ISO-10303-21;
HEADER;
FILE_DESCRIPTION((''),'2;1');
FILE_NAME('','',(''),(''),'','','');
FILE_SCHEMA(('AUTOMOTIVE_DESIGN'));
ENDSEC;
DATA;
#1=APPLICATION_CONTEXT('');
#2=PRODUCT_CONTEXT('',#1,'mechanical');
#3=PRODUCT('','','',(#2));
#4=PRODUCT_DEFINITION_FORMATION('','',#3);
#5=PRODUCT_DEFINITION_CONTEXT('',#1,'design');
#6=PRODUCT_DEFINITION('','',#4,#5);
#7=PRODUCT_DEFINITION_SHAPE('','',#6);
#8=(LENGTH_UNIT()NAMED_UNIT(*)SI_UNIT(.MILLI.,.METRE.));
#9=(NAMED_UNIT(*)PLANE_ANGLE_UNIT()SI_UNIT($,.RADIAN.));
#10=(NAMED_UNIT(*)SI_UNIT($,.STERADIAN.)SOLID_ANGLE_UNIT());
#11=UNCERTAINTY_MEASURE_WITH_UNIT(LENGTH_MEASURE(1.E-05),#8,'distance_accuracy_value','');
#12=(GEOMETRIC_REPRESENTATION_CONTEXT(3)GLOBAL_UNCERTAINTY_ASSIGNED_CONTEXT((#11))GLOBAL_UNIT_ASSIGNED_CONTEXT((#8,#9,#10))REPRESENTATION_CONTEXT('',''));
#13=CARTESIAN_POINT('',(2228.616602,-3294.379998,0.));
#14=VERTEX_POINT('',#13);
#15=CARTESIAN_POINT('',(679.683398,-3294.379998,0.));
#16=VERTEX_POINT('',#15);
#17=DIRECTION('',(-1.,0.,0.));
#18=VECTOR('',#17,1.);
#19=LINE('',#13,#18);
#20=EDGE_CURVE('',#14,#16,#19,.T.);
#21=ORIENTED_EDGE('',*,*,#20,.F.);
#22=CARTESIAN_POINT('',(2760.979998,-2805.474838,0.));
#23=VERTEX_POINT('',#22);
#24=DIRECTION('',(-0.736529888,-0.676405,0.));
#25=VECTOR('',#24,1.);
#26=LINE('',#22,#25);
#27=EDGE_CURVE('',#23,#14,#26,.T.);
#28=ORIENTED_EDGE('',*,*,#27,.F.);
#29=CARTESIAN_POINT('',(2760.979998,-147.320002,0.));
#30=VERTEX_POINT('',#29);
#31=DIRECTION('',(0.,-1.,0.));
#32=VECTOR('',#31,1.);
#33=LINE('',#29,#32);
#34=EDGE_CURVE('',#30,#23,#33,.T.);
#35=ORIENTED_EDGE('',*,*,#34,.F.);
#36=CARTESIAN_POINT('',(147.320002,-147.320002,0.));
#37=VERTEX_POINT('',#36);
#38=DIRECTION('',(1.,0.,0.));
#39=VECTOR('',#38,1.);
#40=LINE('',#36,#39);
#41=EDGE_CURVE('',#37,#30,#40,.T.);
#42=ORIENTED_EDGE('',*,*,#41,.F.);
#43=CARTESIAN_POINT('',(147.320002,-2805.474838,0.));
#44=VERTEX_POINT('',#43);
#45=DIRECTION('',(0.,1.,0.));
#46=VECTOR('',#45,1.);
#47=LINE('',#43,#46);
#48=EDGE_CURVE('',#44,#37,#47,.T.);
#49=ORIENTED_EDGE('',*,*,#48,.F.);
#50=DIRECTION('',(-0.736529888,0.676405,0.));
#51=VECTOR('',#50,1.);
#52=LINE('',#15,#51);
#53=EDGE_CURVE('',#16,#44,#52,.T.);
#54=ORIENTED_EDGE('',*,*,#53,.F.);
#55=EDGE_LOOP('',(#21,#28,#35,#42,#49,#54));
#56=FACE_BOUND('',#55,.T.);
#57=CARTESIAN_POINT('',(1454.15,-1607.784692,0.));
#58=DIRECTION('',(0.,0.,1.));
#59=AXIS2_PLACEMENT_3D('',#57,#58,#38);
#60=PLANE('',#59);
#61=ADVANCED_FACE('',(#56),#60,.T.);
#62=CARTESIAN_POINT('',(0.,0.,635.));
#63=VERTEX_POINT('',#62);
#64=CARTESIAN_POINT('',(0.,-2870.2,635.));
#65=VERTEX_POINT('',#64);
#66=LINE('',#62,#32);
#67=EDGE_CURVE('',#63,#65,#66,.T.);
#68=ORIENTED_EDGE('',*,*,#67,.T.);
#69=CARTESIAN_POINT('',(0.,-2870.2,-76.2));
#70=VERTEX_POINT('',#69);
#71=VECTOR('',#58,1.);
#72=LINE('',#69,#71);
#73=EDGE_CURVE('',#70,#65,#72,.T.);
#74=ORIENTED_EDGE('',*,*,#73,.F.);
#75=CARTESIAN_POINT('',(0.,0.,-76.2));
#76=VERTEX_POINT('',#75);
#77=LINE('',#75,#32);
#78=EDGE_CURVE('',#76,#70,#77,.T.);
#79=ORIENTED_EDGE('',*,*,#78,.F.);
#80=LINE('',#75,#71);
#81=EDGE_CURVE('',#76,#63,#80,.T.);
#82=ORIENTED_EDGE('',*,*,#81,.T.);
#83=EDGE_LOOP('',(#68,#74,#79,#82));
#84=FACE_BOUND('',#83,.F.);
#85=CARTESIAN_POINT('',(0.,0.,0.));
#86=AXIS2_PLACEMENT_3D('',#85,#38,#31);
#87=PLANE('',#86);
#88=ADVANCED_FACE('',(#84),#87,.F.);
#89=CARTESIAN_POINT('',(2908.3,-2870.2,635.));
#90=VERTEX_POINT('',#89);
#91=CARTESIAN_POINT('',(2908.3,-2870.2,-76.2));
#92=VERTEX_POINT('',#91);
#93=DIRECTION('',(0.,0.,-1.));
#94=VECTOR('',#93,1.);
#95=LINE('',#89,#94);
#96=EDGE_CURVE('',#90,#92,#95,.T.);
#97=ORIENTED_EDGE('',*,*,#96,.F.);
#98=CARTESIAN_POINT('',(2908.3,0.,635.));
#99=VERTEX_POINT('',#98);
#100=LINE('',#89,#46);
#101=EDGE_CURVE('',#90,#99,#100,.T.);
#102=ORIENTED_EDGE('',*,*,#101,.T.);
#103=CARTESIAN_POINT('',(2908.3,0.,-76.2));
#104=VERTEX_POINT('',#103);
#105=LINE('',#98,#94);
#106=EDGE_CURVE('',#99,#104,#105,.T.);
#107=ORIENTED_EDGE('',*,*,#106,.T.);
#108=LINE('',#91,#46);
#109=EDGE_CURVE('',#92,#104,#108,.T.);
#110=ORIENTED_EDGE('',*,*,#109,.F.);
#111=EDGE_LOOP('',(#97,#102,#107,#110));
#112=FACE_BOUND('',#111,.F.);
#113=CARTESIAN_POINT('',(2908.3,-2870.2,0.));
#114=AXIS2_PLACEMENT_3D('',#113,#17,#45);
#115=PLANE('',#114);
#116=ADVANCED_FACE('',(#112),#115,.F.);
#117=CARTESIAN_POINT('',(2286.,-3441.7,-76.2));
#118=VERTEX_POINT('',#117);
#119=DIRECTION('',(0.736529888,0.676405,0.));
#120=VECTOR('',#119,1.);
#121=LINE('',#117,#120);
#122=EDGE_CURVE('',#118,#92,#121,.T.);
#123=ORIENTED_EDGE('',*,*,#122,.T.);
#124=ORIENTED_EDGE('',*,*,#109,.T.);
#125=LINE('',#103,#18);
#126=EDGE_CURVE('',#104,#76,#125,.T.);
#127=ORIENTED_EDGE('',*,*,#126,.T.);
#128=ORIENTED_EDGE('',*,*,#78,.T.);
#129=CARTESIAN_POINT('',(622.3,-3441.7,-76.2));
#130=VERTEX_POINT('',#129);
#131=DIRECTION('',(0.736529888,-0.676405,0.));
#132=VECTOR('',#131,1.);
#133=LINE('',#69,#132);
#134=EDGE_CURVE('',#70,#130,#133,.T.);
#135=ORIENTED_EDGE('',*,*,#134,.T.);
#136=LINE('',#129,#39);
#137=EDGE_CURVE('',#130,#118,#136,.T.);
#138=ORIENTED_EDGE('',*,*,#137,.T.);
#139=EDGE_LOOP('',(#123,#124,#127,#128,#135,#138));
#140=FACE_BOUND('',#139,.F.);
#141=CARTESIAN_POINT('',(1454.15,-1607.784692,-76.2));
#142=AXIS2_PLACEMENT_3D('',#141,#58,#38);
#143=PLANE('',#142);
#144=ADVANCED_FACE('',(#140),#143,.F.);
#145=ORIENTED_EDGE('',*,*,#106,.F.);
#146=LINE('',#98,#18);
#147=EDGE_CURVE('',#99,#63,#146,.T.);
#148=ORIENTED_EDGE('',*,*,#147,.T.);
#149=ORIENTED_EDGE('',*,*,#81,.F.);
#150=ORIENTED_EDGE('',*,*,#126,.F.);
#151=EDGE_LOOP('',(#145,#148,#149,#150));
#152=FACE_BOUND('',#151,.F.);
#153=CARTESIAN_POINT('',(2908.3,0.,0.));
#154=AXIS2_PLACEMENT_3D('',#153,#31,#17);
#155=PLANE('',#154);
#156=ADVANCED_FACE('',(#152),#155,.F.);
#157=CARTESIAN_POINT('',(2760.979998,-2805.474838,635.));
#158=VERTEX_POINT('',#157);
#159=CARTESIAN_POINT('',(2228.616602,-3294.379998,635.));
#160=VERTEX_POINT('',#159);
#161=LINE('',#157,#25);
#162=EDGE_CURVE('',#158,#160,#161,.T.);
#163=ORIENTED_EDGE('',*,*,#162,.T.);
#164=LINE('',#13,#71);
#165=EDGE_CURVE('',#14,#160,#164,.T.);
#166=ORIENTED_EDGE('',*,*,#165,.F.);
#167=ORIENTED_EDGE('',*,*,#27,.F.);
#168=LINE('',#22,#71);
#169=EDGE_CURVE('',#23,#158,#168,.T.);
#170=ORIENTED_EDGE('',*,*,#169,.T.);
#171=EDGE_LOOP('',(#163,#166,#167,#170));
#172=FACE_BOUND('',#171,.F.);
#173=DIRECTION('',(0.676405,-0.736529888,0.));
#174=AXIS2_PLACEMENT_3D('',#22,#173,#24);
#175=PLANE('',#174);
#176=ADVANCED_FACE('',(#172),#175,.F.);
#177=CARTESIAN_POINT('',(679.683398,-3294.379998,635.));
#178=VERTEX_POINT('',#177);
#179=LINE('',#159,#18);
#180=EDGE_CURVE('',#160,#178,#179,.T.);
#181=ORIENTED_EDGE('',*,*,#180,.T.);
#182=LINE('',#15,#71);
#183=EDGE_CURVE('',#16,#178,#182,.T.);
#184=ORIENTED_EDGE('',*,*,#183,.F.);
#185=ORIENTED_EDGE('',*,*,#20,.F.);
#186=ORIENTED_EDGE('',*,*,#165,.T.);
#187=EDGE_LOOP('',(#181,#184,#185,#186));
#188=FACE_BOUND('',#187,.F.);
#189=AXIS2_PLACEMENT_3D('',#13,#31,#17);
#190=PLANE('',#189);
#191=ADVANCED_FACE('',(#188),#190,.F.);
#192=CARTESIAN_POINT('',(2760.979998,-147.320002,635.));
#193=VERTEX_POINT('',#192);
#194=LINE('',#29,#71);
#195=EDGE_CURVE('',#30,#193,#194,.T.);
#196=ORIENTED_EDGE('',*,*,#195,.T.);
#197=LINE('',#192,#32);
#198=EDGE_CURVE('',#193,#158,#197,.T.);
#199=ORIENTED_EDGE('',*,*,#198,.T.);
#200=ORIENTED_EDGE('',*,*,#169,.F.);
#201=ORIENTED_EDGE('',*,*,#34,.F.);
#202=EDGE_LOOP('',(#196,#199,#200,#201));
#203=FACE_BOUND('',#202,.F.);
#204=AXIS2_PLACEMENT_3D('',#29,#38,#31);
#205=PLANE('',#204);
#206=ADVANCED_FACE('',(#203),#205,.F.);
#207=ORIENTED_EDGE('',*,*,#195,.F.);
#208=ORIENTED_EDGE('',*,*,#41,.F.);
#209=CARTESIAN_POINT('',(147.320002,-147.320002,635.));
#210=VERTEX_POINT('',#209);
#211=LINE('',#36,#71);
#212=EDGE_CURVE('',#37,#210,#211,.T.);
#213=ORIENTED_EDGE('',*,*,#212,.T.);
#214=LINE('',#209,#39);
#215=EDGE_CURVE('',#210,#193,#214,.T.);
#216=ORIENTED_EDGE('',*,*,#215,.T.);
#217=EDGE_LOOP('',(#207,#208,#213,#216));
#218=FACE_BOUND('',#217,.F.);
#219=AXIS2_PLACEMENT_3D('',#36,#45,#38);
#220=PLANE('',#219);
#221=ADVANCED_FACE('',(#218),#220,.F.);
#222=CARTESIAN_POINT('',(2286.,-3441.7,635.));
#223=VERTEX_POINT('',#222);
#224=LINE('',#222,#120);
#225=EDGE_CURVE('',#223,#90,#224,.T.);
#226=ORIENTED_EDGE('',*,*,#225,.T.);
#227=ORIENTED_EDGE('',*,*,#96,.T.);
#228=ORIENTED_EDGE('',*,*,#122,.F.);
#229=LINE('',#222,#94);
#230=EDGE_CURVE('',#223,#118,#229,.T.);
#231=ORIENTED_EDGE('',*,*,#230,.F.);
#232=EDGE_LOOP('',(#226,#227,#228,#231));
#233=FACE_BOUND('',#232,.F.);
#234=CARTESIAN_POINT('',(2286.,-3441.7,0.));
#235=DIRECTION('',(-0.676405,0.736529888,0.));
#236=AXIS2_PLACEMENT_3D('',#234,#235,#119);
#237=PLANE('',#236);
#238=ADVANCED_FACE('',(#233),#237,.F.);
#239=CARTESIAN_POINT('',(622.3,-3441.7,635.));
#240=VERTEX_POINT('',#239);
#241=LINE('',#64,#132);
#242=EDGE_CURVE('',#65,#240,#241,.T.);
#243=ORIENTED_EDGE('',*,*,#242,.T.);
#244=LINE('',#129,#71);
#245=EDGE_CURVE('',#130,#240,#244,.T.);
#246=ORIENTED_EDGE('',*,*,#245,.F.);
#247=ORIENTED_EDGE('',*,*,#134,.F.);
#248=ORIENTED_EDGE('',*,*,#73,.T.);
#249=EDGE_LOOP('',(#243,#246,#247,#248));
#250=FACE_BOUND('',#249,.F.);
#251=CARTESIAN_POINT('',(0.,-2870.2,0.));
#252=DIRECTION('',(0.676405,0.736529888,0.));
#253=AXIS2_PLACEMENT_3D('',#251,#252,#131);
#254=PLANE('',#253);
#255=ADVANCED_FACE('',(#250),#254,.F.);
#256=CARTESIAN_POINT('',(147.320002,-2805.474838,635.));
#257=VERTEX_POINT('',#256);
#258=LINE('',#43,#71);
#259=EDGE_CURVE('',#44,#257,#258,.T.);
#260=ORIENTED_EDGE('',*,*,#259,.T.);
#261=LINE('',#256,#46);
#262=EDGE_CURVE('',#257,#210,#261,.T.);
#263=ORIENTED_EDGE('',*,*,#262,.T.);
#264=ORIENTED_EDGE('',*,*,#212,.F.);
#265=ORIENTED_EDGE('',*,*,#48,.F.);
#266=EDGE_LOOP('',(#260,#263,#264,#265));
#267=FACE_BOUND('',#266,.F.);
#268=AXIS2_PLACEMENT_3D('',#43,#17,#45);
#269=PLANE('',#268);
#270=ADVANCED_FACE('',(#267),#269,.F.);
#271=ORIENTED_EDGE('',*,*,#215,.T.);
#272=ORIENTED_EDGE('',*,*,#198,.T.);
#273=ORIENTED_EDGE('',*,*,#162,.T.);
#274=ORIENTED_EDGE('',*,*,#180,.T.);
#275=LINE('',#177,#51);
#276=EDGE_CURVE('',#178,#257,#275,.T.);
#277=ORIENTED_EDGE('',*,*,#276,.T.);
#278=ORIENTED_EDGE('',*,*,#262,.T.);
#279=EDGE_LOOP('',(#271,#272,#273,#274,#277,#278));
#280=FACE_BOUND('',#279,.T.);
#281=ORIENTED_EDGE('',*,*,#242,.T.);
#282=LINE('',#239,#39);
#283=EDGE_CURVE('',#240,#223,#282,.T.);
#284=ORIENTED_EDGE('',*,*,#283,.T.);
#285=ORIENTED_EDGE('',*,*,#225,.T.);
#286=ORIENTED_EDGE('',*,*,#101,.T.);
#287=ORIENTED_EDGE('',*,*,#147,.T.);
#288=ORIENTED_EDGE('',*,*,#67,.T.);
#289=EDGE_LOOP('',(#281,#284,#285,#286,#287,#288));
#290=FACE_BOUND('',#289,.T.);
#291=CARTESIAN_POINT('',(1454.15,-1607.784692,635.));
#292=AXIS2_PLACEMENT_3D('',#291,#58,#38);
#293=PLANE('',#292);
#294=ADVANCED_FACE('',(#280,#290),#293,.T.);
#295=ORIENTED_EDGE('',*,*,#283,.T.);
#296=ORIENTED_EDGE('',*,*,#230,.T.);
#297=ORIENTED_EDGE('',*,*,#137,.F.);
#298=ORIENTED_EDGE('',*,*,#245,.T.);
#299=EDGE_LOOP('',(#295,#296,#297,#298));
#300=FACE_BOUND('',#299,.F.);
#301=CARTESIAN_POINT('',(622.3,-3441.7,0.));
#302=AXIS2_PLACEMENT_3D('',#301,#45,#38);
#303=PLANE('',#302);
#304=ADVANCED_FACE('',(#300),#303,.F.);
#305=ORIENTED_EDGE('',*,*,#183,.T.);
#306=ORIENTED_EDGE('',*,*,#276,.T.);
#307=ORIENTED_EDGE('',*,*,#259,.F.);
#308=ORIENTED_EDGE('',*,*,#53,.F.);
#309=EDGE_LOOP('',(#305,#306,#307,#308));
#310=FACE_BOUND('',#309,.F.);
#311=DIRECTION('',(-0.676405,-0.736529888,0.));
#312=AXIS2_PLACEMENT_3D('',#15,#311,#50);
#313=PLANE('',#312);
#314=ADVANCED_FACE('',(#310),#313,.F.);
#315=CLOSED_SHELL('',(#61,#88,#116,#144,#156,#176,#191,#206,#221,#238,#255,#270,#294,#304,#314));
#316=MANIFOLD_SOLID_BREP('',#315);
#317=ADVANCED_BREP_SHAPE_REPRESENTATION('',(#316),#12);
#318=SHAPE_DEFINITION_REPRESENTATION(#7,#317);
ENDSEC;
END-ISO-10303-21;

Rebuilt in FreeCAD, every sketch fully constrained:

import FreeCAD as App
import Part
import Sketcher
from FreeCAD import Vector
Q = App.Units.Quantity

doc = App.newDocument("Part")
body = doc.addObject("PartDesign::Body", "Body")

# Sketch on XY plane
sketch1 = body.newObject("Sketcher::SketchObject", "Sketch")
sketch1.AttachmentSupport = (doc.getObject("XY_Plane"), [""])
sketch1.MapMode = "FlatFace"
sketch1.addGeometry(Part.LineSegment(Vector(2908, 0, 0), Vector(0, 0, 0)), False)
sketch1.addGeometry(Part.LineSegment(Vector(0, 0, 0), Vector(0, -2870, 0)), False)
sketch1.addGeometry(Part.LineSegment(Vector(0, -2870, 0), Vector(622, -3442, 0)), False)
sketch1.addGeometry(Part.LineSegment(Vector(622, -3442, 0), Vector(2286, -3442, 0)), False)
sketch1.addGeometry(Part.LineSegment(Vector(2286, -3442, 0), Vector(2908, -2870, 0)), False)
sketch1.addGeometry(Part.LineSegment(Vector(2908, -2870, 0), Vector(2908, 0, 0)), False)
sketch1.addConstraint(Sketcher.Constraint("Coincident", 0, 2, 1, 1))
sketch1.addConstraint(Sketcher.Constraint("Coincident", 1, 2, 2, 1))
sketch1.addConstraint(Sketcher.Constraint("Coincident", 2, 2, 3, 1))
sketch1.addConstraint(Sketcher.Constraint("Coincident", 3, 2, 4, 1))
sketch1.addConstraint(Sketcher.Constraint("Coincident", 4, 2, 5, 1))
sketch1.addConstraint(Sketcher.Constraint("Coincident", 5, 2, 0, 1))
sketch1.addConstraint(Sketcher.Constraint("Horizontal", 0))
sketch1.addConstraint(Sketcher.Constraint("Vertical", 1))
sketch1.addConstraint(Sketcher.Constraint("Horizontal", 3))
sketch1.addConstraint(Sketcher.Constraint("Vertical", 5))
sketch1.addConstraint(Sketcher.Constraint("Coincident", 0, 2, -1, 1))
sketch1.addConstraint(Sketcher.Constraint("Horizontal", 1, 2, 4, 2))
sketch1.addConstraint(Sketcher.Constraint("Equal", 2, 4))
sketch1.addConstraint(Sketcher.Constraint("DistanceY", 1, 2, 1, 1, Q("113 in")))
sketch1.addConstraint(Sketcher.Constraint("DistanceX", 0, 2, 0, 1, Q("114.5 in")))
sketch1.addConstraint(Sketcher.Constraint("DistanceX", 3, 1, 3, 2, Q("65.5 in")))
sketch1.addConstraint(Sketcher.Constraint("DistanceY", 2, 2, -1, 1, Q("135.5 in")))
pad1 = body.newObject("PartDesign::Pad", "Pad")
pad1.Profile = sketch1
pad1.Length = Q("3 in")
pad1.Reversed = True

# Sketch on XY plane
sketch2 = body.newObject("Sketcher::SketchObject", "Sketch001")
sketch2.AttachmentSupport = (doc.getObject("XY_Plane"), [""])
sketch2.MapMode = "FlatFace"
sketch2.addGeometry(Part.LineSegment(Vector(2908, 0, 0), Vector(0, 0, 0)), False)
sketch2.addGeometry(Part.LineSegment(Vector(0, 0, 0), Vector(0, -2870, 0)), False)
sketch2.addGeometry(Part.LineSegment(Vector(0, -2870, 0), Vector(622, -3442, 0)), False)
sketch2.addGeometry(Part.LineSegment(Vector(622, -3442, 0), Vector(2286, -3442, 0)), False)
sketch2.addGeometry(Part.LineSegment(Vector(2286, -3442, 0), Vector(2908, -2870, 0)), False)
sketch2.addGeometry(Part.LineSegment(Vector(2908, -2870, 0), Vector(2908, 0, 0)), False)
sketch2.addGeometry(Part.LineSegment(Vector(2761, -2805, 0), Vector(2229, -3294, 0)), False)
sketch2.addGeometry(Part.LineSegment(Vector(2229, -3294, 0), Vector(680, -3294, 0)), False)
sketch2.addGeometry(Part.LineSegment(Vector(680, -3294, 0), Vector(147, -2805, 0)), False)
sketch2.addGeometry(Part.LineSegment(Vector(147, -2805, 0), Vector(147, -147, 0)), False)
sketch2.addGeometry(Part.LineSegment(Vector(147, -147, 0), Vector(2761, -147, 0)), False)
sketch2.addGeometry(Part.LineSegment(Vector(2761, -147, 0), Vector(2761, -2805, 0)), False)
sketch2.addConstraint(Sketcher.Constraint("Coincident", 0, 2, 1, 1))
sketch2.addConstraint(Sketcher.Constraint("Coincident", 1, 2, 2, 1))
sketch2.addConstraint(Sketcher.Constraint("Coincident", 2, 2, 3, 1))
sketch2.addConstraint(Sketcher.Constraint("Coincident", 3, 2, 4, 1))
sketch2.addConstraint(Sketcher.Constraint("Coincident", 4, 2, 5, 1))
sketch2.addConstraint(Sketcher.Constraint("Coincident", 5, 2, 0, 1))
sketch2.addConstraint(Sketcher.Constraint("Coincident", 6, 2, 7, 1))
sketch2.addConstraint(Sketcher.Constraint("Coincident", 7, 2, 8, 1))
sketch2.addConstraint(Sketcher.Constraint("Coincident", 8, 2, 9, 1))
sketch2.addConstraint(Sketcher.Constraint("Coincident", 9, 2, 10, 1))
sketch2.addConstraint(Sketcher.Constraint("Coincident", 10, 2, 11, 1))
sketch2.addConstraint(Sketcher.Constraint("Coincident", 11, 2, 6, 1))
sketch2.addConstraint(Sketcher.Constraint("Horizontal", 0))
sketch2.addConstraint(Sketcher.Constraint("Vertical", 1))
sketch2.addConstraint(Sketcher.Constraint("Horizontal", 3))
sketch2.addConstraint(Sketcher.Constraint("Vertical", 5))
sketch2.addConstraint(Sketcher.Constraint("Horizontal", 7))
sketch2.addConstraint(Sketcher.Constraint("Vertical", 9))
sketch2.addConstraint(Sketcher.Constraint("Horizontal", 10))
sketch2.addConstraint(Sketcher.Constraint("Vertical", 11))
sketch2.addConstraint(Sketcher.Constraint("Coincident", 0, 2, -1, 1))
sketch2.addConstraint(Sketcher.Constraint("Parallel", 4, 6))
sketch2.addConstraint(Sketcher.Constraint("Parallel", 2, 8))
sketch2.addConstraint(Sketcher.Constraint("Horizontal", 1, 2, 4, 2))
sketch2.addConstraint(Sketcher.Constraint("Horizontal", 8, 2, 11, 2))
sketch2.addConstraint(Sketcher.Constraint("Equal", 2, 4))
sketch2.addConstraint(Sketcher.Constraint("DistanceY", 1, 2, 1, 1, Q("113 in")))
sketch2.addConstraint(Sketcher.Constraint("DistanceX", 0, 2, 0, 1, Q("114.5 in")))
sketch2.addConstraint(Sketcher.Constraint("DistanceX", 3, 1, 3, 2, Q("65.5 in")))
sketch2.addConstraint(Sketcher.Constraint("DistanceX", 10, 1, 10, 2, Q("102.8999998 in")))
sketch2.addConstraint(Sketcher.Constraint("DistanceY", 2, 2, -1, 1, Q("135.5 in")))
sketch2.addConstraint(Sketcher.Constraint("DistanceY", 6, 2, -1, 1, Q("129.6999999 in")))
sketch2.addConstraint(Sketcher.Constraint("DistanceX", -1, 1, 8, 2, Q("5.8000001 in")))
sketch2.addConstraint(Sketcher.Constraint("DistanceY", 9, 2, -1, 1, Q("5.8000001 in")))
sketch2.addConstraint(Sketcher.Constraint("DistanceX", -1, 1, 7, 2, Q("679.683398 mm")))
pad2 = body.newObject("PartDesign::Pad", "Pad001")
pad2.Profile = sketch2
pad2.Length = Q("25 in")

doc.recompute()
